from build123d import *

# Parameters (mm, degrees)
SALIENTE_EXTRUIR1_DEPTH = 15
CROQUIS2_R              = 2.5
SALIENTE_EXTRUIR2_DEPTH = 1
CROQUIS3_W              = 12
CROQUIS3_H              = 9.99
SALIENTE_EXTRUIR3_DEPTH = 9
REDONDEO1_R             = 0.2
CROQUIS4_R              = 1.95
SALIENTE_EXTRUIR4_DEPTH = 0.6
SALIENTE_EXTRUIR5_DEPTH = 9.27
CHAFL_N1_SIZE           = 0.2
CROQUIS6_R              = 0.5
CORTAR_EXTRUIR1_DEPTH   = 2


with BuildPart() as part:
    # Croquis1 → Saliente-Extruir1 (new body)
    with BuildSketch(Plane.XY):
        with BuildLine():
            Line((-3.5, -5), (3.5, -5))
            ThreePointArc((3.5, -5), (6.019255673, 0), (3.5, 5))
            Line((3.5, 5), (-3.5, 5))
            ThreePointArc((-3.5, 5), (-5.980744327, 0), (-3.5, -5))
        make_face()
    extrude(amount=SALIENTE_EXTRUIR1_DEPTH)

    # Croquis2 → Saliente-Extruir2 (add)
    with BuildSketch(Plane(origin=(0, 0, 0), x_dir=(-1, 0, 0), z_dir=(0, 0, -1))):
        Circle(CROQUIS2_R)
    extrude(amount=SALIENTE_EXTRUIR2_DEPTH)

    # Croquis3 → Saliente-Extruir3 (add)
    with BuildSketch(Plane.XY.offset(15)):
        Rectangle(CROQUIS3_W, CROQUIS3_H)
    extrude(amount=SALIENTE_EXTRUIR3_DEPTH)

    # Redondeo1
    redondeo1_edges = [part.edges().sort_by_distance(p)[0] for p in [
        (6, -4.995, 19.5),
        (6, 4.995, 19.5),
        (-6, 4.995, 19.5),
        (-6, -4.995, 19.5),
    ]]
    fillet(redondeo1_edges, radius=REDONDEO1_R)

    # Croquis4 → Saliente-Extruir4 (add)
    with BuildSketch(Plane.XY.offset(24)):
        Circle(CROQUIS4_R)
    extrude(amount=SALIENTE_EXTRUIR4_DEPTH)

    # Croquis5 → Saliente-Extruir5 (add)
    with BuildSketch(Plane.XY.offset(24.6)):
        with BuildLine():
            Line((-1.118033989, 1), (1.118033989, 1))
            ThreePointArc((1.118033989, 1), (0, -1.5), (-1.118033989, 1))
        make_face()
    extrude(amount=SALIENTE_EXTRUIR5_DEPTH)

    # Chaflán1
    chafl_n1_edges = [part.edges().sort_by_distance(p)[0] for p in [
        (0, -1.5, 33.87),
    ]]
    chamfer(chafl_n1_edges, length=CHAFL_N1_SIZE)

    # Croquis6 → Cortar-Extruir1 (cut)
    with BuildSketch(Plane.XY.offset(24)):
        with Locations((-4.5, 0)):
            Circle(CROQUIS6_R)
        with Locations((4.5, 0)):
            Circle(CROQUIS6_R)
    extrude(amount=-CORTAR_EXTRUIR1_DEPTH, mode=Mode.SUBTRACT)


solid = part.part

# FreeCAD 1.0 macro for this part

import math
import FreeCAD as App
import Part
import Sketcher

V = App.Vector


def edges_at(feature, points):
    """Names of the edges that pass closest to the given points."""
    edges = feature.Shape.Edges
    near = lambda p: min(range(len(edges)), key=lambda i: edges[i].distToShape(Part.Vertex(*p))[0])
    return sorted({f"Edge{near(p) + 1}" for p in points})


def add_polygon(sketch, points):
    """Adds a closed chain of lines whose ends are joined by coincident constraints."""
    first, n = sketch.GeometryCount, len(points)
    for a, b in zip(points, points[1:] + points[:1]):
        sketch.addGeometry(Part.LineSegment(App.Vector(*a, 0), App.Vector(*b, 0)), False)
    for i in range(n):
        sketch.addConstraint(Sketcher.Constraint("Coincident", first + i, 2, first + (i + 1) % n, 1))

doc = App.newDocument("Part")
params = doc.addObject("Spreadsheet::Sheet", "Params")
for row, (alias, value) in enumerate([
    ("sketch1_width", "7 mm"),
    ("pad1_length", "15 mm"),
    ("sketch2_diameter", "5 mm"),
    ("pad2_length", "1 mm"),
    ("sketch3_width", "12 mm"),
    ("sketch3_height", "9.99 mm"),
    ("pad3_length", "9 mm"),
    ("fillet_radius", "0.2 mm"),
    ("sketch4_diameter", "3.9 mm"),
    ("pad4_length", "0.6 mm"),
    ("sketch5_radius", "1.5 mm"),
    ("pad5_length", "9.27 mm"),
    ("chamfer_size", "0.2 mm"),
    ("sketch6_diameter", "1 mm"),
    ("pocket1_length", "2 mm"),
], start=1):
    params.set(f"A{row}", alias)
    params.set(f"B{row}", "=" + value)
    params.setAlias(f"B{row}", alias)

body = doc.addObject("PartDesign::Body", "Body")

# Sketch on XY plane
sketch1 = body.newObject("Sketcher::SketchObject", "Sketch")
sketch1.AttachmentSupport = (doc.getObject("XY_Plane"), [""])
sketch1.MapMode = "FlatFace"
sketch1.addGeometry(Part.LineSegment(V(-3.5, -5, 0), V(3.5, -5, 0)), False)
sketch1.addGeometry(Part.ArcOfCircle(Part.Circle(V(-0.202155, 0, 0), V(0, 0, 1), 6.221411), math.radians(-53.482604), math.radians(53.482604)), False)
sketch1.addGeometry(Part.LineSegment(V(3.5, 5, 0), V(-3.5, 5, 0)), False)
sketch1.addGeometry(Part.ArcOfCircle(Part.Circle(V(0.298438, 0, 0), V(0, 0, 1), 6.279182), math.radians(127.223487), math.radians(232.776513)), False)
sketch1.addConstraint(Sketcher.Constraint("Coincident", 0, 2, 1, 1))
sketch1.addConstraint(Sketcher.Constraint("Coincident", 1, 2, 2, 1))
sketch1.addConstraint(Sketcher.Constraint("Coincident", 2, 2, 3, 1))
sketch1.addConstraint(Sketcher.Constraint("Coincident", 3, 2, 0, 1))
sketch1.addConstraint(Sketcher.Constraint("Horizontal", 0))
sketch1.addConstraint(Sketcher.Constraint("Horizontal", 2))
sketch1.addConstraint(Sketcher.Constraint("Symmetric", 0, 2, 2, 2, -1, 1))
sketch1.addConstraint(Sketcher.Constraint("PointOnObject", 1, 3, -1))
sketch1.addConstraint(Sketcher.Constraint("PointOnObject", 3, 3, -1))
sketch1.addConstraint(Sketcher.Constraint("DistanceX", 0, 1, 0, 2, 7.0))
sketch1.addConstraint(Sketcher.Constraint("DistanceY", 0, 2, -1, 1, 5.0))
sketch1.addConstraint(Sketcher.Constraint("Radius", 1, 6.221411))
sketch1.addConstraint(Sketcher.Constraint("Radius", 3, 6.279182))
sketch1.setExpression("Constraints[9]", "Params.sketch1_width")
pad1 = body.newObject("PartDesign::Pad", "Pad")
pad1.Profile = sketch1
pad1.setExpression("Length", "Params.pad1_length")

# Sketch on XY plane
sketch2 = body.newObject("Sketcher::SketchObject", "Sketch001")
sketch2.AttachmentSupport = (doc.getObject("XY_Plane"), [""])
sketch2.MapMode = "FlatFace"
sketch2.addGeometry(Part.Circle(V(0, 0, 0), V(0, 0, 1), 2.5), False)
sketch2.addConstraint(Sketcher.Constraint("Coincident", 0, 3, -1, 1))
sketch2.addConstraint(Sketcher.Constraint("Diameter", 0, 5.0))
sketch2.setExpression("Constraints[1]", "Params.sketch2_diameter")
pad2 = body.newObject("PartDesign::Pad", "Pad001")
pad2.Profile = sketch2
pad2.setExpression("Length", "Params.pad2_length")
pad2.Reversed = True

# Sketch on XY plane
sketch3 = body.newObject("Sketcher::SketchObject", "Sketch002")
sketch3.AttachmentSupport = (doc.getObject("XY_Plane"), [""])
sketch3.MapMode = "FlatFace"
sketch3.AttachmentOffset = App.Placement(V(0, 0, 15), App.Rotation())
add_polygon(sketch3, [(-6, 4.995), (-6, -4.995), (6, -4.995), (6, 4.995)])  # lines 0-3
sketch3.addConstraint(Sketcher.Constraint("Vertical", 0))
sketch3.addConstraint(Sketcher.Constraint("Horizontal", 1))
sketch3.addConstraint(Sketcher.Constraint("Vertical", 2))
sketch3.addConstraint(Sketcher.Constraint("Horizontal", 3))
sketch3.addConstraint(Sketcher.Constraint("Symmetric", 0, 2, 2, 2, -1, 1))
sketch3.addConstraint(Sketcher.Constraint("DistanceX", 1, 1, 1, 2, 12.0))
sketch3.addConstraint(Sketcher.Constraint("DistanceY", 0, 2, 0, 1, 9.99))
sketch3.setExpression("Constraints[9]", "Params.sketch3_width")
sketch3.setExpression("Constraints[10]", "Params.sketch3_height")
pad3 = body.newObject("PartDesign::Pad", "Pad002")
pad3.Profile = sketch3
pad3.setExpression("Length", "Params.pad3_length")
doc.recompute()

fillet = body.newObject("PartDesign::Fillet", "Fillet")
fillet.Base = (pad3, edges_at(pad3, [
    (6, -4.995, 19.5),
    (6, 4.995, 19.5),
    (-6, 4.995, 19.5),
    (-6, -4.995, 19.5),
]))
fillet.setExpression("Radius", "Params.fillet_radius")

# Sketch on XY plane
sketch4 = body.newObject("Sketcher::SketchObject", "Sketch003")
sketch4.AttachmentSupport = (doc.getObject("XY_Plane"), [""])
sketch4.MapMode = "FlatFace"
sketch4.AttachmentOffset = App.Placement(V(0, 0, 24), App.Rotation())
sketch4.addGeometry(Part.Circle(V(0, 0, 0), V(0, 0, 1), 1.95), False)
sketch4.addConstraint(Sketcher.Constraint("Coincident", 0, 3, -1, 1))
sketch4.addConstraint(Sketcher.Constraint("Diameter", 0, 3.9))
sketch4.setExpression("Constraints[1]", "Params.sketch4_diameter")
pad4 = body.newObject("PartDesign::Pad", "Pad003")
pad4.Profile = sketch4
pad4.setExpression("Length", "Params.pad4_length")

# Sketch on XY plane
sketch5 = body.newObject("Sketcher::SketchObject", "Sketch004")
sketch5.AttachmentSupport = (doc.getObject("XY_Plane"), [""])
sketch5.MapMode = "FlatFace"
sketch5.AttachmentOffset = App.Placement(V(0, 0, 24.6), App.Rotation())
sketch5.addGeometry(Part.LineSegment(V(1.118034, 1, 0), V(-1.118034, 1, 0)), False)
sketch5.addGeometry(Part.ArcOfCircle(Part.Circle(V(0, 0, 0), V(0, 0, 1), 1.5), math.radians(138.189685), math.radians(401.810315)), False)
sketch5.addConstraint(Sketcher.Constraint("Coincident", 0, 1, 1, 2))
sketch5.addConstraint(Sketcher.Constraint("Coincident", 1, 1, 0, 2))
sketch5.addConstraint(Sketcher.Constraint("Horizontal", 0))
sketch5.addConstraint(Sketcher.Constraint("Coincident", 1, 3, -1, 1))
sketch5.addConstraint(Sketcher.Constraint("Radius", 1, 1.5))
sketch5.addConstraint(Sketcher.Constraint("DistanceY", -1, 1, 0, 1, 1.0))
sketch5.setExpression("Constraints[4]", "Params.sketch5_radius")
pad5 = body.newObject("PartDesign::Pad", "Pad004")
pad5.Profile = sketch5
pad5.setExpression("Length", "Params.pad5_length")
doc.recompute()

chamfer = body.newObject("PartDesign::Chamfer", "Chamfer")
chamfer.Base = (pad5, edges_at(pad5, [(0, -1.5, 33.87)]))
chamfer.setExpression("Size", "Params.chamfer_size")

# Sketch on XY plane
sketch6 = body.newObject("Sketcher::SketchObject", "Sketch005")
sketch6.AttachmentSupport = (doc.getObject("XY_Plane"), [""])
sketch6.MapMode = "FlatFace"
sketch6.AttachmentOffset = App.Placement(V(0, 0, 24), App.Rotation())
sketch6.addGeometry(Part.Circle(V(-4.5, 0, 0), V(0, 0, 1), 0.5), False)
sketch6.addGeometry(Part.Circle(V(4.5, 0, 0), V(0, 0, 1), 0.5), False)
sketch6.addConstraint(Sketcher.Constraint("Equal", 0, 1))
sketch6.addConstraint(Sketcher.Constraint("Symmetric", 0, 3, 1, 3, -1, 1))
sketch6.addConstraint(Sketcher.Constraint("PointOnObject", 0, 3, -1))
sketch6.addConstraint(Sketcher.Constraint("Diameter", 0, 1.0))
sketch6.addConstraint(Sketcher.Constraint("DistanceX", 0, 3, 1, 3, 9.0))
sketch6.setExpression("Constraints[3]", "Params.sketch6_diameter")
pocket1 = body.newObject("PartDesign::Pocket", "Pocket")
pocket1.Profile = sketch6
pocket1.setExpression("Length", "Params.pocket1_length")

doc.recompute()
